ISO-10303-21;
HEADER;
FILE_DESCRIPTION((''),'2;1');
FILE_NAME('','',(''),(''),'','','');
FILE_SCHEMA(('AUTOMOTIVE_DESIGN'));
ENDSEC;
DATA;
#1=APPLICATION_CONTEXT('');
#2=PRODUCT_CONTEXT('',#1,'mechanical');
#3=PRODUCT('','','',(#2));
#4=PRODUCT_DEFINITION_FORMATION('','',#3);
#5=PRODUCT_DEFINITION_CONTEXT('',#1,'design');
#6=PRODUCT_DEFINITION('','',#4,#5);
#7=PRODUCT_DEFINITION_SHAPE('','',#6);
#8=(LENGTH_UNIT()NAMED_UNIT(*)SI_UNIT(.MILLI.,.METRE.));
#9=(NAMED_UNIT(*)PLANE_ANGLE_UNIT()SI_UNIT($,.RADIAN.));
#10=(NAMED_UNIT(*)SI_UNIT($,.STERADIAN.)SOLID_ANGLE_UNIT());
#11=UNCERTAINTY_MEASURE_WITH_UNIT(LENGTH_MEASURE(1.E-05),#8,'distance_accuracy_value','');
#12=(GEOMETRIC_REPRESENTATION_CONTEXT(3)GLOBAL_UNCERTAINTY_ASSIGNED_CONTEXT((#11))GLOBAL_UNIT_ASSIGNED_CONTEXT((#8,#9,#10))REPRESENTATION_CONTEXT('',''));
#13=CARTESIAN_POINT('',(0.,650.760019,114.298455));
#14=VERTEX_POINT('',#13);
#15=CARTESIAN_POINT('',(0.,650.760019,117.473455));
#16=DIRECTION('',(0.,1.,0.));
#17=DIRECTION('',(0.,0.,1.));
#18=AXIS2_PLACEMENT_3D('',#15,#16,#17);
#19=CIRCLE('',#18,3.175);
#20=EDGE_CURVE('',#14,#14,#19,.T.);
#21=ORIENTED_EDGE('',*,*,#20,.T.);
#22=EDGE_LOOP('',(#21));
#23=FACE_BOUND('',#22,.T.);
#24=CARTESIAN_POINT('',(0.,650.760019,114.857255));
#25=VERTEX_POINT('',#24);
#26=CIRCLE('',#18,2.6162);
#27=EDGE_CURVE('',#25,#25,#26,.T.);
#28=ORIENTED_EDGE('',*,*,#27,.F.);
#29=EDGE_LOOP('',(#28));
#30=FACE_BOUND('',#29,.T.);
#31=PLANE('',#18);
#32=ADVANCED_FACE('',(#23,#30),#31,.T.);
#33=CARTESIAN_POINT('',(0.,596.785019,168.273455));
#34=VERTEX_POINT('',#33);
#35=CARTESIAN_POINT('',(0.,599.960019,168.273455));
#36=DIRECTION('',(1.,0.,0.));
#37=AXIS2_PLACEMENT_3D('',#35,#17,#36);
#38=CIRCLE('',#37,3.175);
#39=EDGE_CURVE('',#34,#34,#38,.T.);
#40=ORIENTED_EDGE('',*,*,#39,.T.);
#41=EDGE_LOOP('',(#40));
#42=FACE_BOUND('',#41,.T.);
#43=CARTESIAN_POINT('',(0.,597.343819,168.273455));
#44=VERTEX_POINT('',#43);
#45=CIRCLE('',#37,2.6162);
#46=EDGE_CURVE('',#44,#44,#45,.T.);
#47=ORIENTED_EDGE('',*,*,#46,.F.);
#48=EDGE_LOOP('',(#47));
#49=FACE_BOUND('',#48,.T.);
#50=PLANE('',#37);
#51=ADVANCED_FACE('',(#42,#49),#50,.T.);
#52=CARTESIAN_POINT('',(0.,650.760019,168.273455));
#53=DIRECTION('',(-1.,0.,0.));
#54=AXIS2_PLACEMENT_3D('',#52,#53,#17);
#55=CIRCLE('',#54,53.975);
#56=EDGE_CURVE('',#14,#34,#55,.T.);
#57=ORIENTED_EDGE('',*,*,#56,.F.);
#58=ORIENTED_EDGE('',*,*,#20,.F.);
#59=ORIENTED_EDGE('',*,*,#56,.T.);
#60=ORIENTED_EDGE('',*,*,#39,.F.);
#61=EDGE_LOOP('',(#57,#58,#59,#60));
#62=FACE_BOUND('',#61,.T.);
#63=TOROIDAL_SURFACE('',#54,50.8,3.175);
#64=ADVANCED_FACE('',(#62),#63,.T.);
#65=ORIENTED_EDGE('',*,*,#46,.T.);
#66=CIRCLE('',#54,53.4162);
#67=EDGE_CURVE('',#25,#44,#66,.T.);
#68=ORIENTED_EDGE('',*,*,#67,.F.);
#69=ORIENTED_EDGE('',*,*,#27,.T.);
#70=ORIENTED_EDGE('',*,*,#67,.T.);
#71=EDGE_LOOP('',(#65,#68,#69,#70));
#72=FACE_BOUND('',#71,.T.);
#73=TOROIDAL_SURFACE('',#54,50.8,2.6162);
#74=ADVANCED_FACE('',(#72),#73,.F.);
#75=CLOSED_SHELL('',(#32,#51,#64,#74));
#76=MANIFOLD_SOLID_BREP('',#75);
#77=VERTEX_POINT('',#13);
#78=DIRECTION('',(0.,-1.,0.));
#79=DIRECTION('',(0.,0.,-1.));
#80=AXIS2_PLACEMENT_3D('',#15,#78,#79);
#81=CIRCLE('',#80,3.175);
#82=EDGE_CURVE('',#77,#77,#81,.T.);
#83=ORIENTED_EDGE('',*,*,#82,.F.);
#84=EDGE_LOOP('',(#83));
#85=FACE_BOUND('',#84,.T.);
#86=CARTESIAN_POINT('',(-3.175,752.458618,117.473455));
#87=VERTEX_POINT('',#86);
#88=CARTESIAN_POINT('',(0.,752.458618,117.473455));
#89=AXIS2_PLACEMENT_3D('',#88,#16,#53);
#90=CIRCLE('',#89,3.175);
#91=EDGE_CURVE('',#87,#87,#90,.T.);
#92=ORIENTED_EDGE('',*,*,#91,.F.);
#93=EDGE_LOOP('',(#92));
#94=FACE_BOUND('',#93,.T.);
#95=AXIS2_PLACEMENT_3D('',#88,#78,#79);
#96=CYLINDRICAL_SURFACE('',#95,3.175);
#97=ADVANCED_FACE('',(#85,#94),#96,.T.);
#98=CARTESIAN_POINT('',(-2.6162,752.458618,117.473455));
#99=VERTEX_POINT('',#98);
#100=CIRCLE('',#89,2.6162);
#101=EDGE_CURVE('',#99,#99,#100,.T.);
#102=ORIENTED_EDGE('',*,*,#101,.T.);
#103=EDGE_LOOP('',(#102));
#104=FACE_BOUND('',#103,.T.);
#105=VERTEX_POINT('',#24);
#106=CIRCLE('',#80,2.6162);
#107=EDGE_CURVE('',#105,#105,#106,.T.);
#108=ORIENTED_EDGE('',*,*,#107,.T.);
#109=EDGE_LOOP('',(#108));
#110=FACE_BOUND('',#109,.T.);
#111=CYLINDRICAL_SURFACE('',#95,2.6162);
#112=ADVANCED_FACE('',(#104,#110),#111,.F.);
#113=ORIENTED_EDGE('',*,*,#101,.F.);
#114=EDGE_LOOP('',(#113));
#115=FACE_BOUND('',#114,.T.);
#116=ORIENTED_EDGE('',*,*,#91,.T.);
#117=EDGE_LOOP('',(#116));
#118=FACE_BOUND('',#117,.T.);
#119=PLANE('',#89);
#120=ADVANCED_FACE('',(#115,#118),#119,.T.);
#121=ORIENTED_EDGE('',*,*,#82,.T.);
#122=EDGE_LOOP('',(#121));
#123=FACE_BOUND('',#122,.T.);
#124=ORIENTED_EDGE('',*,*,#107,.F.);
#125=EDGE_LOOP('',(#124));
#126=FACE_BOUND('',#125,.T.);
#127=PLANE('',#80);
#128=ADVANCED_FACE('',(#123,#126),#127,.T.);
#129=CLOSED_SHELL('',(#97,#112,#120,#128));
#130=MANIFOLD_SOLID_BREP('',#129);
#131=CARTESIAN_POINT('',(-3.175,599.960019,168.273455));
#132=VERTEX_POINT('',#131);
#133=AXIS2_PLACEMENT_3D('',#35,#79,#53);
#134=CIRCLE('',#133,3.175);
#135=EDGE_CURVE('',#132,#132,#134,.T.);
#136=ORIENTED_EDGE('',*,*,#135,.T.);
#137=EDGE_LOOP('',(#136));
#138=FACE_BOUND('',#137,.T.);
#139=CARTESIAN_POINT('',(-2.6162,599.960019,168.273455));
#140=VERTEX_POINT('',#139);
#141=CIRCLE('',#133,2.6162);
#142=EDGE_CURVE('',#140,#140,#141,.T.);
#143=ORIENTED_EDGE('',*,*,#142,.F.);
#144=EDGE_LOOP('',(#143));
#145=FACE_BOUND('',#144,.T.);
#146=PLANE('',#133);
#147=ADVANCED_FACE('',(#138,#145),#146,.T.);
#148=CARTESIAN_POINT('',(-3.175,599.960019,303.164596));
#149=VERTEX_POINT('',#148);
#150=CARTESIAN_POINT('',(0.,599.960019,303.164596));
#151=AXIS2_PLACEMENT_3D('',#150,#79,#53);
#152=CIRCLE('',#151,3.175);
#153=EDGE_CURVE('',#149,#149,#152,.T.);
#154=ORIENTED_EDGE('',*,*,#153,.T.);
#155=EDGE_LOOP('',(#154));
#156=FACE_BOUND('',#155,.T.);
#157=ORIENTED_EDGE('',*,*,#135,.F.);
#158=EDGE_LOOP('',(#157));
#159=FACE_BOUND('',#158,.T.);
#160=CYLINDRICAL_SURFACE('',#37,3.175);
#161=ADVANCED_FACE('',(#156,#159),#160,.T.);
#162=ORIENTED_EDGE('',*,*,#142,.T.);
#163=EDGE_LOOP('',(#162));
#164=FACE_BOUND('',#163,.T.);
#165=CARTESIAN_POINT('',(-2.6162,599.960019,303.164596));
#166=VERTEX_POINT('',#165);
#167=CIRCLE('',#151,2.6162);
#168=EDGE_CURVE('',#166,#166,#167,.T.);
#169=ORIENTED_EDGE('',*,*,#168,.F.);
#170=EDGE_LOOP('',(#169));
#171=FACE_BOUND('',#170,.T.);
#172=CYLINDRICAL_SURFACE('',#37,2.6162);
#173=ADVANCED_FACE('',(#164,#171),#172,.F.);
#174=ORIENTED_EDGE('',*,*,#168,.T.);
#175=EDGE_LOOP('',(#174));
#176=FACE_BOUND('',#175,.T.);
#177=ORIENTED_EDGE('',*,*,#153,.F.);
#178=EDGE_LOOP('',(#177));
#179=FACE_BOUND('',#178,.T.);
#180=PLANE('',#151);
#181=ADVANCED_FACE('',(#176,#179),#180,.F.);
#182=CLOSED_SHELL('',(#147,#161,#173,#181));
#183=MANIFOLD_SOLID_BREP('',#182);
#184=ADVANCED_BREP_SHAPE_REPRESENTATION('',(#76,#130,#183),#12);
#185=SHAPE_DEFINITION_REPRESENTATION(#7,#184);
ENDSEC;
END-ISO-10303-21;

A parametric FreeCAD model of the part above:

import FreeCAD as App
import Part
import Sketcher
from FreeCAD import Vector
Q = App.Units.Quantity

doc = App.newDocument("Part")
body = doc.addObject("PartDesign::Body", "Body")

sketch1 = body.newObject("Sketcher::SketchObject", "Sketch")
sketch1.AttachmentSupport = (doc.getObject("XY_Plane"), [""])
sketch1.MapMode = "FlatFace"
sketch1.AttachmentOffset = App.Placement(Vector(0, 0, 303.164596), App.Rotation())
sketch1.addGeometry([
    Part.Circle(Vector(0, 600, 0), Vector(0, 0, 1), 3.2),
    Part.Circle(Vector(0, 600, 0), Vector(0, 0, 1), 2.6),
], False)
sketch1.addConstraint([
    Sketcher.Constraint("Coincident", 1, 3, 0, 3),
    Sketcher.Constraint("PointOnObject", 0, 3, -2),
    Sketcher.Constraint("Diameter", 0, Q("0.25 in")),
    Sketcher.Constraint("Diameter", 1, Q("0.206 in")),
    Sketcher.Constraint("DistanceY", -1, 1, 0, 3, Q("599.960019 mm")),
])
pad1 = body.newObject("PartDesign::Pad", "Pad")
pad1.Profile = sketch1
pad1.Length = 134.891141
pad1.Reversed = True
body2 = doc.addObject("PartDesign::Body", "Body001")

sketch2 = body2.newObject("Sketcher::SketchObject", "Sketch001")
sketch2.AttachmentSupport = (doc.getObject("XY_Plane001"), [""])
sketch2.MapMode = "FlatFace"
sketch2.AttachmentOffset = App.Placement(Vector(0, 0, 168.273455), App.Rotation())
sketch2.addGeometry([
    Part.Circle(Vector(0, 600, 0), Vector(0, 0, 1), 3.2),
    Part.Circle(Vector(0, 600, 0), Vector(0, 0, 1), 2.6),
], False)
sketch2.addGeometry(Part.LineSegment(Vector(0, 650.8, 0), Vector(10, 650.8, 0)), True)
sketch2.addConstraint([
    Sketcher.Constraint("Horizontal", 2),
    Sketcher.Constraint("Coincident", 1, 3, 0, 3),
    Sketcher.Constraint("PointOnObject", 0, 3, -2),
    Sketcher.Constraint("PointOnObject", 2, 1, -2),
    Sketcher.Constraint("Diameter", 0, Q("0.25 in")),
    Sketcher.Constraint("Diameter", 1, Q("0.206 in")),
    Sketcher.Constraint("DistanceY", 0, 3, 2, 1, Q("2 in")),
    Sketcher.Constraint("DistanceX", 2, 1, 2, 2, Q("10 mm")),
    Sketcher.Constraint("DistanceY", -1, 1, 0, 3, Q("599.960019 mm")),
])
revolution = body2.newObject("PartDesign::Revolution", "Revolution")
revolution.Profile = sketch2
revolution.ReferenceAxis = (sketch2, ["Axis0"])
revolution.Angle = 90
body3 = doc.addObject("PartDesign::Body", "Body002")

sketch3 = body3.newObject("Sketcher::SketchObject", "Sketch002")
sketch3.AttachmentSupport = (doc.getObject("XZ_Plane002"), [""])
sketch3.MapMode = "FlatFace"
sketch3.AttachmentOffset = App.Placement(Vector(0, 0, -650.760019), App.Rotation())
sketch3.addGeometry([
    Part.Circle(Vector(0, 117.5, 0), Vector(0, 0, 1), 3.2),
    Part.Circle(Vector(0, 117.5, 0), Vector(0, 0, 1), 2.6),
], False)
sketch3.addConstraint([
    Sketcher.Constraint("Coincident", 1, 3, 0, 3),
    Sketcher.Constraint("PointOnObject", 0, 3, -2),
    Sketcher.Constraint("Diameter", 0, Q("0.25 in")),
    Sketcher.Constraint("Diameter", 1, Q("0.206 in")),
    Sketcher.Constraint("DistanceY", -1, 1, 0, 3, Q("117.473455 mm")),
])
pad2 = body3.newObject("PartDesign::Pad", "Pad001")
pad2.Profile = sketch3
pad2.Length = 101.698599
pad2.Reversed = True

doc.recompute()
